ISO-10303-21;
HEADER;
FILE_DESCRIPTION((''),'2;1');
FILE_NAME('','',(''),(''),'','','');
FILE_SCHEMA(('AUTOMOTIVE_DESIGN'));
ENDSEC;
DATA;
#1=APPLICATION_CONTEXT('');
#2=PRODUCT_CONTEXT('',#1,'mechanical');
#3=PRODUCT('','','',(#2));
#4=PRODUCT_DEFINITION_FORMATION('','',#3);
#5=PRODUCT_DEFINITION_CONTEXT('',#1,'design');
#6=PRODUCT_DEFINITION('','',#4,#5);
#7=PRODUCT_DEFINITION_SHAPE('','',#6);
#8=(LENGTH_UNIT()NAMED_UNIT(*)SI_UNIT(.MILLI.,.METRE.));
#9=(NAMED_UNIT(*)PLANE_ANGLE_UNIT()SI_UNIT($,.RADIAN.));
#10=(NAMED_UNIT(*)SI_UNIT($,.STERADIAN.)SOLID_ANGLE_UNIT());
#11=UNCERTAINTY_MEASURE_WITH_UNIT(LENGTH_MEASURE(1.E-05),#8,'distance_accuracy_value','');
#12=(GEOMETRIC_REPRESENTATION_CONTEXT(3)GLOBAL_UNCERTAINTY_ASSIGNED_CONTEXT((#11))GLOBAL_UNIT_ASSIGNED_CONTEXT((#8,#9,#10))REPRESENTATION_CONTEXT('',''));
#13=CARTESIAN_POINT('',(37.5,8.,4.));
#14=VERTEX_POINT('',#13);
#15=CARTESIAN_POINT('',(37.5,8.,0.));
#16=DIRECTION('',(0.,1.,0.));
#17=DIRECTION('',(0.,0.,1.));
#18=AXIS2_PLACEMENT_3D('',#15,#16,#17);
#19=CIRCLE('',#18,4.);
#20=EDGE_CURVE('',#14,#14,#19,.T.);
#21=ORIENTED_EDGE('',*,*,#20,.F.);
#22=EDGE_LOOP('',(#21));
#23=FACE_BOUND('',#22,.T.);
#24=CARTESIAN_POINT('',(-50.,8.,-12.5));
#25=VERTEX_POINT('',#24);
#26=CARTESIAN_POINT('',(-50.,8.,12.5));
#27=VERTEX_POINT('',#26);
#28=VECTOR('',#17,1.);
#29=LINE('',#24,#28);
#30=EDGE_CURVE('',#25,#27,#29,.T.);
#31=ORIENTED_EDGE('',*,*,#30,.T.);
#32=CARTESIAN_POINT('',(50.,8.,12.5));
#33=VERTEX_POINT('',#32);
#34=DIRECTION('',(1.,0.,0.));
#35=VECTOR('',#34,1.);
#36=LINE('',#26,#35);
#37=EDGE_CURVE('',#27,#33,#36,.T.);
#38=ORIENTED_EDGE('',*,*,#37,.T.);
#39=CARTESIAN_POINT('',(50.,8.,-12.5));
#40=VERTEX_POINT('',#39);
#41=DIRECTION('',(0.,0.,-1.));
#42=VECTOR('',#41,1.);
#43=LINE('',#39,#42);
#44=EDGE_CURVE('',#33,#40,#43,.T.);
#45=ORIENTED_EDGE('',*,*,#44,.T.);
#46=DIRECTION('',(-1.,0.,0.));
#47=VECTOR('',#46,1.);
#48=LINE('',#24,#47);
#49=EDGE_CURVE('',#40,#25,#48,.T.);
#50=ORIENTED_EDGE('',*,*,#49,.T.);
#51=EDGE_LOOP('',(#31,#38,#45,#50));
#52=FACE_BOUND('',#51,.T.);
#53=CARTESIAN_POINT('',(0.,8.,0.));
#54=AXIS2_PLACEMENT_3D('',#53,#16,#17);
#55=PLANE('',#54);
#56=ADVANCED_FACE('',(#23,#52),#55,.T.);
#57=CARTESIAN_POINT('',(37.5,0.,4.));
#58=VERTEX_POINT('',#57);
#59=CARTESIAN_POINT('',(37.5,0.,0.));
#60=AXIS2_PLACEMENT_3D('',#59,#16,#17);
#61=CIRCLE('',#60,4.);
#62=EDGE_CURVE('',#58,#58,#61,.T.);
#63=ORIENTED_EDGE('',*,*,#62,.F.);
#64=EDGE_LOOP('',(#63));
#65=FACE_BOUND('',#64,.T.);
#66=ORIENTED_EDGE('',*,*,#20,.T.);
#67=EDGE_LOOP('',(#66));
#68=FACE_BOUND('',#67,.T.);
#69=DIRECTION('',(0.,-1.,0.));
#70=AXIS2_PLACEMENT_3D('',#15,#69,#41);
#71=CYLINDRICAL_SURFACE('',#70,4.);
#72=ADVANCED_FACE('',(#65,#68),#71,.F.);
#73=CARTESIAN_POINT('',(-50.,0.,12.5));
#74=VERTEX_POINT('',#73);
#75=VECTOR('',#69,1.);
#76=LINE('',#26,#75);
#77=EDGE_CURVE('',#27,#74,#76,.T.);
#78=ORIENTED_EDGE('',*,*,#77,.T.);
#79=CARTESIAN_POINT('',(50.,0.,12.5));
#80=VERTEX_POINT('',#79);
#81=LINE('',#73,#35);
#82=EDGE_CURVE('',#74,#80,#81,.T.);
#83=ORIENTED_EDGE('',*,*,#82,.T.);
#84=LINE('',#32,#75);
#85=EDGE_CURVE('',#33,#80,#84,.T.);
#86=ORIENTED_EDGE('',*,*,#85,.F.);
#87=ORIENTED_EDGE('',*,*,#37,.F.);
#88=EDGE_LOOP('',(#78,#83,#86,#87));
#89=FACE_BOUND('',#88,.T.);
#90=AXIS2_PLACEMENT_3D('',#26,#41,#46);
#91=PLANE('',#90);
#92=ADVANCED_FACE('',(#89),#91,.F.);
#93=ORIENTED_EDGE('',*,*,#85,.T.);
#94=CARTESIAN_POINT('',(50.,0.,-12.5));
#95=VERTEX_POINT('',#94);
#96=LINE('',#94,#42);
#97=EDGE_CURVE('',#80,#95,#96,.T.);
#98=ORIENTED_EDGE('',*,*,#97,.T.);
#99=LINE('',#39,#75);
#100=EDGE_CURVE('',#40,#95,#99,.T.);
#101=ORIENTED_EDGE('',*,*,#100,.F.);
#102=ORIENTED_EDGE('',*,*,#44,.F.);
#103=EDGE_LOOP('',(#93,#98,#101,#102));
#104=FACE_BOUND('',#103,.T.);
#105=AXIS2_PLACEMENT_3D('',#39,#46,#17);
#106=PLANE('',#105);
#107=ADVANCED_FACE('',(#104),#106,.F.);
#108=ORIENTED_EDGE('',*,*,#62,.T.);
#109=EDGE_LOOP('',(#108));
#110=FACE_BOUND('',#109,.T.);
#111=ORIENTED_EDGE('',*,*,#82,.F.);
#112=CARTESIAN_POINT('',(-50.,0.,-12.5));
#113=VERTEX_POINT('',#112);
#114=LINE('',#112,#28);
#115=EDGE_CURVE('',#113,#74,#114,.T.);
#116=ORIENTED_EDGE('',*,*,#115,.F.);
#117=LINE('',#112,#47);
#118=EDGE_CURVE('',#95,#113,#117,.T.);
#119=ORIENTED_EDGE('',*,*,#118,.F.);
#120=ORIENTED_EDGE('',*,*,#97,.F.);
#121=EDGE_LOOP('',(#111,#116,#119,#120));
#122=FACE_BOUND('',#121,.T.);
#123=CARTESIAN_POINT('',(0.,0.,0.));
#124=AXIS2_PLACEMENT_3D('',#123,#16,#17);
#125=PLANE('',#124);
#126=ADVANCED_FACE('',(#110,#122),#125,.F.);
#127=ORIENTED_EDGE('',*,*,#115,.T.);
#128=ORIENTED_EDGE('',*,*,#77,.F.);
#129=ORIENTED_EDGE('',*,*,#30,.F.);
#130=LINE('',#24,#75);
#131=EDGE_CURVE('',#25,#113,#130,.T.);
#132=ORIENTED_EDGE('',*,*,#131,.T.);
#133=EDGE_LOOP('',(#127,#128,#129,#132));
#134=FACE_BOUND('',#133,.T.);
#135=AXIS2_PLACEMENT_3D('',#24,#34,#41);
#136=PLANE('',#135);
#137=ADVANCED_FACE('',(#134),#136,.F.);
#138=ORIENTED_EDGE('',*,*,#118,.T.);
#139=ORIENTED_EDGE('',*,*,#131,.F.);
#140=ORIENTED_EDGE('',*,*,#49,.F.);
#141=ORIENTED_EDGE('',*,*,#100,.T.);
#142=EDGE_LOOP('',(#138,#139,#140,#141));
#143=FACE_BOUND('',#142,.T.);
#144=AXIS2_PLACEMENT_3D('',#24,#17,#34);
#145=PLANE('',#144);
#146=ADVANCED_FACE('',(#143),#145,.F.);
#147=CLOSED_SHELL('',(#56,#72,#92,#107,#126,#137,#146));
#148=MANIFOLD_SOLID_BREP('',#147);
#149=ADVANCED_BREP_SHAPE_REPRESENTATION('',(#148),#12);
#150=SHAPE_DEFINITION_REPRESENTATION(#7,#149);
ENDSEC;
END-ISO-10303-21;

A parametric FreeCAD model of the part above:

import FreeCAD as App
import Part
import Sketcher

V = App.Vector
Q = App.Units.Quantity


def add_polygon(sketch, points):
    """Adds a closed chain of lines whose ends are joined by coincident constraints."""
    first, n = sketch.GeometryCount, len(points)
    for a, b in zip(points, points[1:] + points[:1]):
        sketch.addGeometry(Part.LineSegment(App.Vector(*a, 0), App.Vector(*b, 0)), False)
    for i in range(n):
        sketch.addConstraint(Sketcher.Constraint("Coincident", first + i, 2, first + (i + 1) % n, 1))

doc = App.newDocument("Part")
params = doc.addObject("Spreadsheet::Sheet", "Params")
for row, (alias, value) in enumerate([
    ("sketch1_diameter", "8 mm"),
    ("sketch1_width", "100 mm"),
    ("sketch1_height", "25 mm"),
    ("pad1_length", "8 mm"),
], start=1):
    params.set(f"A{row}", alias)
    params.set(f"B{row}", "=" + value)
    params.setAlias(f"B{row}", alias)

body = doc.addObject("PartDesign::Body", "Body")

# Sketch on XZ plane
sketch1 = body.newObject("Sketcher::SketchObject", "Sketch")
sketch1.AttachmentSupport = (doc.getObject("XZ_Plane"), [""])
sketch1.MapMode = "FlatFace"
add_polygon(sketch1, [(-50, -12.5), (-50, 12.5), (50, 12.5), (50, -12.5)])  # lines 0-3
sketch1.addGeometry(Part.Circle(V(37.5, 0, 0), V(0, 0, 1), 4), False)  # 4
sketch1.addConstraint([
    Sketcher.Constraint("Vertical", 0),
    Sketcher.Constraint("Horizontal", 1),
    Sketcher.Constraint("Vertical", 2),
    Sketcher.Constraint("Horizontal", 3),
    Sketcher.Constraint("Symmetric", 0, 2, 2, 2, -1, 1),
    Sketcher.Constraint("PointOnObject", 4, 3, -1),
    Sketcher.Constraint("Diameter", 4, Q("8 mm")),
    Sketcher.Constraint("DistanceX", 1, 1, 1, 2, Q("100 mm")),
    Sketcher.Constraint("DistanceY", 0, 1, 0, 2, Q("25 mm")),
    Sketcher.Constraint("DistanceX", -1, 1, 4, 3, Q("37.5 mm")),
])
sketch1.setExpression("Constraints[10]", "Params.sketch1_diameter")
sketch1.setExpression("Constraints[11]", "Params.sketch1_width")
sketch1.setExpression("Constraints[12]", "Params.sketch1_height")
pad1 = body.newObject("PartDesign::Pad", "Pad")
pad1.Profile = sketch1
pad1.setExpression("Length", "Params.pad1_length")
pad1.Reversed = True

doc.recompute()
